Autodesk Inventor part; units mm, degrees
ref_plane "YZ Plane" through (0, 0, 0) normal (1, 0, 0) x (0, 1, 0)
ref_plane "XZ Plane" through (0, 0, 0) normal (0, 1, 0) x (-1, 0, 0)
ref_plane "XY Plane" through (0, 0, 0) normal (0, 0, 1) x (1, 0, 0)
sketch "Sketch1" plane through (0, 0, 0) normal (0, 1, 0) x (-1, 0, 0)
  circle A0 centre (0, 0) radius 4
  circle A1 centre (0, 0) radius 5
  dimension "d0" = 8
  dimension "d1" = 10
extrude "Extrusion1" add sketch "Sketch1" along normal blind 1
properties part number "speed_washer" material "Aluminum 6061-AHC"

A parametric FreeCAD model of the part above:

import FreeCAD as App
import Part
import Sketcher
from FreeCAD import Vector
Q = App.Units.Quantity

doc = App.newDocument("Part")
body = doc.addObject("PartDesign::Body", "Body")

sketch1 = body.newObject("Sketcher::SketchObject", "Sketch")
sketch1.AttachmentSupport = (doc.getObject("XZ_Plane"), [""])
sketch1.MapMode = "FlatFace"
sketch1.addGeometry([
    Part.Circle(Vector(0, 0, 0), Vector(0, 0, 1), 5),
    Part.Circle(Vector(0, 0, 0), Vector(0, 0, 1), 4),
], False)
sketch1.addConstraint([
    Sketcher.Constraint("Coincident", 0, 3, -1, 1),
    Sketcher.Constraint("Coincident", 1, 3, -1, 1),
    Sketcher.Constraint("Diameter", 0, Q("10 mm")),
    Sketcher.Constraint("Diameter", 1, Q("8 mm")),
])
pad1 = body.newObject("PartDesign::Pad", "Pad")
pad1.Profile = sketch1
pad1.Length = 1
pad1.Reversed = True

doc.recompute()
